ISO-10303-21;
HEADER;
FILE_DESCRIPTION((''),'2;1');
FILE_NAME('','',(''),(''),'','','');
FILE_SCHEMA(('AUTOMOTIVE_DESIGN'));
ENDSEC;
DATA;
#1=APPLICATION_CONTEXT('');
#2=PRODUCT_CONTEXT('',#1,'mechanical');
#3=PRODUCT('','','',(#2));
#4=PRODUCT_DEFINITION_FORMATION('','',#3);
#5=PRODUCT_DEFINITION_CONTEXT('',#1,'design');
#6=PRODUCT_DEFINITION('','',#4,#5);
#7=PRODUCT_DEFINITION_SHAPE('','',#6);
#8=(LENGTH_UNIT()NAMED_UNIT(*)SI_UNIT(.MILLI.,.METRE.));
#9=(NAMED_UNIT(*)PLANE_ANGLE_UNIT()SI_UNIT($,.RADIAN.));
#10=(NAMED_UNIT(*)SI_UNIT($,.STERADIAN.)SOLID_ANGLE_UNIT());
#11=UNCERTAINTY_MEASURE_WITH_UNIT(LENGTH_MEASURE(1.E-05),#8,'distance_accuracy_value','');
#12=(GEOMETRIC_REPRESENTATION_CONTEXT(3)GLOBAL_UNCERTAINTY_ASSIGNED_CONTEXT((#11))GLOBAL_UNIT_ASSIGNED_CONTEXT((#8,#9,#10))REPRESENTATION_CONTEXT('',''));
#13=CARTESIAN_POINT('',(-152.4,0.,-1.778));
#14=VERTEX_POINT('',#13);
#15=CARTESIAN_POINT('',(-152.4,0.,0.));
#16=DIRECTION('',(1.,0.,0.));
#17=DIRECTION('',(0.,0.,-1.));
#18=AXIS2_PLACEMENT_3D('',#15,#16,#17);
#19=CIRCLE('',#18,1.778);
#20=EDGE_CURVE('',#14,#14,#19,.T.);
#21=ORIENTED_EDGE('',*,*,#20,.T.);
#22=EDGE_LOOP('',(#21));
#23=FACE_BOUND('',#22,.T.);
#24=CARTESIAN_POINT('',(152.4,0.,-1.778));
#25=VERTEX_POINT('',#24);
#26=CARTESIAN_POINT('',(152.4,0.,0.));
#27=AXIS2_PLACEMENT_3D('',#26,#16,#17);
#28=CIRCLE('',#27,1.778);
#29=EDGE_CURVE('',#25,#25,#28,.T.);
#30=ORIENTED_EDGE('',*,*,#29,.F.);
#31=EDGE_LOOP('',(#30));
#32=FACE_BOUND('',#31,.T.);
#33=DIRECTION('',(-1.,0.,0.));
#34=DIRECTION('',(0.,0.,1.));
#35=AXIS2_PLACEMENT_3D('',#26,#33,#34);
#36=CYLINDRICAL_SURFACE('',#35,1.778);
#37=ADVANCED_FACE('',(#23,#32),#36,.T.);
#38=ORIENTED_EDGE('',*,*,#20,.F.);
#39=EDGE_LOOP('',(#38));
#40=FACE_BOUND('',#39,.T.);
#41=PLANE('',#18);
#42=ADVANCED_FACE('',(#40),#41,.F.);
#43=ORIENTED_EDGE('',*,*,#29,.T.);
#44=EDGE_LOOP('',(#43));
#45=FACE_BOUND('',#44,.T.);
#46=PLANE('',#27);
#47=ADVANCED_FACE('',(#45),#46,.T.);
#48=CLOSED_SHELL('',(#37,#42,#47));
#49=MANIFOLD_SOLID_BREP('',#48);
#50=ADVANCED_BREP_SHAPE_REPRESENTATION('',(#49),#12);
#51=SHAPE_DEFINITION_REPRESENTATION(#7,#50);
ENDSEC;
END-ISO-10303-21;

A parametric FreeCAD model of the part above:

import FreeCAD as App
import Part
import Sketcher

V = App.Vector
Q = App.Units.Quantity

doc = App.newDocument("Part")
body = doc.addObject("PartDesign::Body", "Body")

sketch1 = doc.addObject("Sketcher::SketchObject", "Sketch")
body.addObject(sketch1)
sketch1.AttachmentSupport = (doc.YZ_Plane, [""])
sketch1.MapMode = "FlatFace"
sketch1.addGeometry(Part.Circle(V(0, 0, 0), V(0, 0, 1), 1.8), False)
sketch1.addConstraint(Sketcher.Constraint("Coincident", 0, 3, -1, 1))
sketch1.addConstraint(Sketcher.Constraint("Diameter", 0, Q("0.14 in")))
pad1 = doc.addObject("PartDesign::Pad", "Pad")
body.addObject(pad1)
pad1.Profile = sketch1
pad1.Length = Q("12 in")
pad1.Midplane = True

doc.recompute()
